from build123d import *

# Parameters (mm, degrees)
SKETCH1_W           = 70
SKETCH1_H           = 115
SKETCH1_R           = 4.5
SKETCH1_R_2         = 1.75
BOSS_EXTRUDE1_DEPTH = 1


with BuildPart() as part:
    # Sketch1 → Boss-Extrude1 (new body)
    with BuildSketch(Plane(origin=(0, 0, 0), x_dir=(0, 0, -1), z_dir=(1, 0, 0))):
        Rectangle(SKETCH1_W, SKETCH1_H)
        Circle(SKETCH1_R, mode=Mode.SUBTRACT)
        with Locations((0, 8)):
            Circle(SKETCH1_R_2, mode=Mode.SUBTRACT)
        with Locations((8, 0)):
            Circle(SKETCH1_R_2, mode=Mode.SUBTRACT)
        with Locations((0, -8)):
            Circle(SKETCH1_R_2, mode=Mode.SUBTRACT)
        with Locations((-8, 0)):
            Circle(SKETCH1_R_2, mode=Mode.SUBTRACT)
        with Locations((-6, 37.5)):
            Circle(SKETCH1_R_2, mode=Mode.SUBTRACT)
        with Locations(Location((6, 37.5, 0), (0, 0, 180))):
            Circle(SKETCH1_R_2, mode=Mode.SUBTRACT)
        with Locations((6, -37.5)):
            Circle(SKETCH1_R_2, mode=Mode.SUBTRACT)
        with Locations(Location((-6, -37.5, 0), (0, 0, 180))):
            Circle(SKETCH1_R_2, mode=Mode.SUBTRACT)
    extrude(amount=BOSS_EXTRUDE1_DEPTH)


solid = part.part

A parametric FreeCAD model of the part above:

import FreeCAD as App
import Part
import Sketcher


def add_polygon(sketch, points):
    """Adds a closed chain of lines whose ends are joined by coincident constraints."""
    first, n = sketch.GeometryCount, len(points)
    for a, b in zip(points, points[1:] + points[:1]):
        sketch.addGeometry(Part.LineSegment(App.Vector(*a, 0), App.Vector(*b, 0)), False)
    for i in range(n):
        sketch.addConstraint(Sketcher.Constraint("Coincident", first + i, 2, first + (i + 1) % n, 1))

doc = App.newDocument("Part")
body = doc.addObject("PartDesign::Body", "Body")

sketch1 = body.newObject("Sketcher::SketchObject", "Sketch")
sketch1.AttachmentSupport = (doc.getObject("YZ_Plane"), [""])
sketch1.MapMode = "FlatFace"
add_polygon(sketch1, [(57.5, 35), (-57.5, 35), (-57.5, -35), (57.5, -35)])
sketch1.addGeometry(Part.Circle(App.Vector(-37.5, 6, 0), App.Vector(0, 0, 1), 1.8), False)
sketch1.addGeometry(Part.Circle(App.Vector(-37.5, -6, 0), App.Vector(0, 0, 1), 1.8), False)
sketch1.addGeometry(Part.Circle(App.Vector(-8, 0, 0), App.Vector(0, 0, 1), 1.8), False)
sketch1.addGeometry(Part.Circle(App.Vector(0, 8, 0), App.Vector(0, 0, 1), 1.8), False)
sketch1.addGeometry(Part.Circle(App.Vector(37.5, 6, 0), App.Vector(0, 0, 1), 1.8), False)
sketch1.addGeometry(Part.Circle(App.Vector(0, 0, 0), App.Vector(0, 0, 1), 4.5), False)
sketch1.addGeometry(Part.Circle(App.Vector(8, 0, 0), App.Vector(0, 0, 1), 1.8), False)
sketch1.addGeometry(Part.Circle(App.Vector(0, -8, 0), App.Vector(0, 0, 1), 1.8), False)
sketch1.addGeometry(Part.Circle(App.Vector(37.5, -6, 0), App.Vector(0, 0, 1), 1.8), False)
sketch1.addConstraint([
    Sketcher.Constraint("Horizontal", 0),
    Sketcher.Constraint("Vertical", 1),
    Sketcher.Constraint("Horizontal", 2),
    Sketcher.Constraint("Vertical", 3),
    Sketcher.Constraint("Coincident", 9, 3, -1, 1),
    Sketcher.Constraint("Equal", 4, 5),
    Sketcher.Constraint("Equal", 5, 6),
    Sketcher.Constraint("Equal", 6, 7),
    Sketcher.Constraint("Equal", 7, 8),
    Sketcher.Constraint("Equal", 8, 10),
    Sketcher.Constraint("Equal", 10, 11),
    Sketcher.Constraint("Equal", 11, 12),
    Sketcher.Constraint("Symmetric", 5, 3, 8, 3, -1, 1),
    Sketcher.Constraint("Symmetric", 6, 3, 10, 3, -1, 1),
    Sketcher.Constraint("Symmetric", 7, 3, 11, 3, -1, 1),
    Sketcher.Constraint("Symmetric", 4, 3, 12, 3, -1, 1),
    Sketcher.Constraint("Symmetric", 0, 2, 2, 2, -1, 1),
    Sketcher.Constraint("Symmetric", 4, 3, 8, 3, -2),
    Sketcher.Constraint("PointOnObject", 6, 3, -1),
    Sketcher.Constraint("PointOnObject", 7, 3, -2),
    Sketcher.Constraint("Diameter", 9, 9.0),
    Sketcher.Constraint("Diameter", 4, 3.5),
    Sketcher.Constraint("DistanceX", 0, 2, 0, 1, 115.0),
    Sketcher.Constraint("DistanceY", 1, 2, 1, 1, 70.0),
    Sketcher.Constraint("DistanceY", -1, 1, 4, 3, 6.0),
    Sketcher.Constraint("DistanceX", 6, 3, -1, 1, 8.0),
    Sketcher.Constraint("DistanceY", -1, 1, 7, 3, 8.0),
    Sketcher.Constraint("DistanceX", 4, 3, 8, 3, 75.0),
])
pad1 = body.newObject("PartDesign::Pad", "Pad")
pad1.Profile = sketch1
pad1.Length = 1

doc.recompute()
